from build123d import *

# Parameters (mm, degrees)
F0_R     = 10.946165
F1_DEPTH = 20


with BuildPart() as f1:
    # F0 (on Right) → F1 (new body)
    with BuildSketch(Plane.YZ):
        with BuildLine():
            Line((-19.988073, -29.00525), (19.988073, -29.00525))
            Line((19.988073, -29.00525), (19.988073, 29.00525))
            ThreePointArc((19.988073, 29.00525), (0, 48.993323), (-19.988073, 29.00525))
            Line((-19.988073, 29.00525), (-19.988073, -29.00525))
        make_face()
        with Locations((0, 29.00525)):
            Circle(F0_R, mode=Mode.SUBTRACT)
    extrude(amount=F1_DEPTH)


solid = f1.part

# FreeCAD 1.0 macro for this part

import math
import FreeCAD as App
import Part
import Sketcher

doc = App.newDocument("Part")
body = doc.addObject("PartDesign::Body", "Body")

# Sketch on YZ plane
sketch1 = body.newObject("Sketcher::SketchObject", "Sketch")
sketch1.AttachmentSupport = (doc.getObject("YZ_Plane"), [""])
sketch1.MapMode = "FlatFace"
sketch1.addGeometry([
    Part.LineSegment(App.Vector(-19.988073, -29.00525, 0), App.Vector(19.988073, -29.00525, 0)),  # 0
    Part.LineSegment(App.Vector(19.988073, -29.00525, 0), App.Vector(19.988073, 29.00525, 0)),  # 1
    Part.ArcOfCircle(Part.Circle(App.Vector(0, 29.00525, 0), App.Vector(0, 0, 1), 19.988073), math.radians(0), math.radians(180)),  # 2
    Part.LineSegment(App.Vector(-19.988073, 29.00525, 0), App.Vector(-19.988073, -29.00525, 0)),  # 3
    Part.Circle(App.Vector(0, 29.00525, 0), App.Vector(0, 0, 1), 10.946165),  # 4
], False)
sketch1.addConstraint([
    Sketcher.Constraint("Coincident", 0, 2, 1, 1),
    Sketcher.Constraint("Tangent", 1, 2, 2, 1),
    Sketcher.Constraint("Tangent", 2, 2, 3, 1),
    Sketcher.Constraint("Coincident", 3, 2, 0, 1),
    Sketcher.Constraint("Horizontal", 0),
    Sketcher.Constraint("Vertical", 1),
    Sketcher.Constraint("Vertical", 3),
    Sketcher.Constraint("Coincident", 4, 3, 2, 3),
    Sketcher.Constraint("Symmetric", 0, 2, 2, 2, -1, 1),
    Sketcher.Constraint("Diameter", 4, 21.89233),
    Sketcher.Constraint("DistanceY", 1, 1, 1, 2, 58.0105),
    Sketcher.Constraint("Radius", 2, 19.988073),
])
pad1 = body.newObject("PartDesign::Pad", "Pad")
pad1.Profile = sketch1
pad1.Length = 20

doc.recompute()
